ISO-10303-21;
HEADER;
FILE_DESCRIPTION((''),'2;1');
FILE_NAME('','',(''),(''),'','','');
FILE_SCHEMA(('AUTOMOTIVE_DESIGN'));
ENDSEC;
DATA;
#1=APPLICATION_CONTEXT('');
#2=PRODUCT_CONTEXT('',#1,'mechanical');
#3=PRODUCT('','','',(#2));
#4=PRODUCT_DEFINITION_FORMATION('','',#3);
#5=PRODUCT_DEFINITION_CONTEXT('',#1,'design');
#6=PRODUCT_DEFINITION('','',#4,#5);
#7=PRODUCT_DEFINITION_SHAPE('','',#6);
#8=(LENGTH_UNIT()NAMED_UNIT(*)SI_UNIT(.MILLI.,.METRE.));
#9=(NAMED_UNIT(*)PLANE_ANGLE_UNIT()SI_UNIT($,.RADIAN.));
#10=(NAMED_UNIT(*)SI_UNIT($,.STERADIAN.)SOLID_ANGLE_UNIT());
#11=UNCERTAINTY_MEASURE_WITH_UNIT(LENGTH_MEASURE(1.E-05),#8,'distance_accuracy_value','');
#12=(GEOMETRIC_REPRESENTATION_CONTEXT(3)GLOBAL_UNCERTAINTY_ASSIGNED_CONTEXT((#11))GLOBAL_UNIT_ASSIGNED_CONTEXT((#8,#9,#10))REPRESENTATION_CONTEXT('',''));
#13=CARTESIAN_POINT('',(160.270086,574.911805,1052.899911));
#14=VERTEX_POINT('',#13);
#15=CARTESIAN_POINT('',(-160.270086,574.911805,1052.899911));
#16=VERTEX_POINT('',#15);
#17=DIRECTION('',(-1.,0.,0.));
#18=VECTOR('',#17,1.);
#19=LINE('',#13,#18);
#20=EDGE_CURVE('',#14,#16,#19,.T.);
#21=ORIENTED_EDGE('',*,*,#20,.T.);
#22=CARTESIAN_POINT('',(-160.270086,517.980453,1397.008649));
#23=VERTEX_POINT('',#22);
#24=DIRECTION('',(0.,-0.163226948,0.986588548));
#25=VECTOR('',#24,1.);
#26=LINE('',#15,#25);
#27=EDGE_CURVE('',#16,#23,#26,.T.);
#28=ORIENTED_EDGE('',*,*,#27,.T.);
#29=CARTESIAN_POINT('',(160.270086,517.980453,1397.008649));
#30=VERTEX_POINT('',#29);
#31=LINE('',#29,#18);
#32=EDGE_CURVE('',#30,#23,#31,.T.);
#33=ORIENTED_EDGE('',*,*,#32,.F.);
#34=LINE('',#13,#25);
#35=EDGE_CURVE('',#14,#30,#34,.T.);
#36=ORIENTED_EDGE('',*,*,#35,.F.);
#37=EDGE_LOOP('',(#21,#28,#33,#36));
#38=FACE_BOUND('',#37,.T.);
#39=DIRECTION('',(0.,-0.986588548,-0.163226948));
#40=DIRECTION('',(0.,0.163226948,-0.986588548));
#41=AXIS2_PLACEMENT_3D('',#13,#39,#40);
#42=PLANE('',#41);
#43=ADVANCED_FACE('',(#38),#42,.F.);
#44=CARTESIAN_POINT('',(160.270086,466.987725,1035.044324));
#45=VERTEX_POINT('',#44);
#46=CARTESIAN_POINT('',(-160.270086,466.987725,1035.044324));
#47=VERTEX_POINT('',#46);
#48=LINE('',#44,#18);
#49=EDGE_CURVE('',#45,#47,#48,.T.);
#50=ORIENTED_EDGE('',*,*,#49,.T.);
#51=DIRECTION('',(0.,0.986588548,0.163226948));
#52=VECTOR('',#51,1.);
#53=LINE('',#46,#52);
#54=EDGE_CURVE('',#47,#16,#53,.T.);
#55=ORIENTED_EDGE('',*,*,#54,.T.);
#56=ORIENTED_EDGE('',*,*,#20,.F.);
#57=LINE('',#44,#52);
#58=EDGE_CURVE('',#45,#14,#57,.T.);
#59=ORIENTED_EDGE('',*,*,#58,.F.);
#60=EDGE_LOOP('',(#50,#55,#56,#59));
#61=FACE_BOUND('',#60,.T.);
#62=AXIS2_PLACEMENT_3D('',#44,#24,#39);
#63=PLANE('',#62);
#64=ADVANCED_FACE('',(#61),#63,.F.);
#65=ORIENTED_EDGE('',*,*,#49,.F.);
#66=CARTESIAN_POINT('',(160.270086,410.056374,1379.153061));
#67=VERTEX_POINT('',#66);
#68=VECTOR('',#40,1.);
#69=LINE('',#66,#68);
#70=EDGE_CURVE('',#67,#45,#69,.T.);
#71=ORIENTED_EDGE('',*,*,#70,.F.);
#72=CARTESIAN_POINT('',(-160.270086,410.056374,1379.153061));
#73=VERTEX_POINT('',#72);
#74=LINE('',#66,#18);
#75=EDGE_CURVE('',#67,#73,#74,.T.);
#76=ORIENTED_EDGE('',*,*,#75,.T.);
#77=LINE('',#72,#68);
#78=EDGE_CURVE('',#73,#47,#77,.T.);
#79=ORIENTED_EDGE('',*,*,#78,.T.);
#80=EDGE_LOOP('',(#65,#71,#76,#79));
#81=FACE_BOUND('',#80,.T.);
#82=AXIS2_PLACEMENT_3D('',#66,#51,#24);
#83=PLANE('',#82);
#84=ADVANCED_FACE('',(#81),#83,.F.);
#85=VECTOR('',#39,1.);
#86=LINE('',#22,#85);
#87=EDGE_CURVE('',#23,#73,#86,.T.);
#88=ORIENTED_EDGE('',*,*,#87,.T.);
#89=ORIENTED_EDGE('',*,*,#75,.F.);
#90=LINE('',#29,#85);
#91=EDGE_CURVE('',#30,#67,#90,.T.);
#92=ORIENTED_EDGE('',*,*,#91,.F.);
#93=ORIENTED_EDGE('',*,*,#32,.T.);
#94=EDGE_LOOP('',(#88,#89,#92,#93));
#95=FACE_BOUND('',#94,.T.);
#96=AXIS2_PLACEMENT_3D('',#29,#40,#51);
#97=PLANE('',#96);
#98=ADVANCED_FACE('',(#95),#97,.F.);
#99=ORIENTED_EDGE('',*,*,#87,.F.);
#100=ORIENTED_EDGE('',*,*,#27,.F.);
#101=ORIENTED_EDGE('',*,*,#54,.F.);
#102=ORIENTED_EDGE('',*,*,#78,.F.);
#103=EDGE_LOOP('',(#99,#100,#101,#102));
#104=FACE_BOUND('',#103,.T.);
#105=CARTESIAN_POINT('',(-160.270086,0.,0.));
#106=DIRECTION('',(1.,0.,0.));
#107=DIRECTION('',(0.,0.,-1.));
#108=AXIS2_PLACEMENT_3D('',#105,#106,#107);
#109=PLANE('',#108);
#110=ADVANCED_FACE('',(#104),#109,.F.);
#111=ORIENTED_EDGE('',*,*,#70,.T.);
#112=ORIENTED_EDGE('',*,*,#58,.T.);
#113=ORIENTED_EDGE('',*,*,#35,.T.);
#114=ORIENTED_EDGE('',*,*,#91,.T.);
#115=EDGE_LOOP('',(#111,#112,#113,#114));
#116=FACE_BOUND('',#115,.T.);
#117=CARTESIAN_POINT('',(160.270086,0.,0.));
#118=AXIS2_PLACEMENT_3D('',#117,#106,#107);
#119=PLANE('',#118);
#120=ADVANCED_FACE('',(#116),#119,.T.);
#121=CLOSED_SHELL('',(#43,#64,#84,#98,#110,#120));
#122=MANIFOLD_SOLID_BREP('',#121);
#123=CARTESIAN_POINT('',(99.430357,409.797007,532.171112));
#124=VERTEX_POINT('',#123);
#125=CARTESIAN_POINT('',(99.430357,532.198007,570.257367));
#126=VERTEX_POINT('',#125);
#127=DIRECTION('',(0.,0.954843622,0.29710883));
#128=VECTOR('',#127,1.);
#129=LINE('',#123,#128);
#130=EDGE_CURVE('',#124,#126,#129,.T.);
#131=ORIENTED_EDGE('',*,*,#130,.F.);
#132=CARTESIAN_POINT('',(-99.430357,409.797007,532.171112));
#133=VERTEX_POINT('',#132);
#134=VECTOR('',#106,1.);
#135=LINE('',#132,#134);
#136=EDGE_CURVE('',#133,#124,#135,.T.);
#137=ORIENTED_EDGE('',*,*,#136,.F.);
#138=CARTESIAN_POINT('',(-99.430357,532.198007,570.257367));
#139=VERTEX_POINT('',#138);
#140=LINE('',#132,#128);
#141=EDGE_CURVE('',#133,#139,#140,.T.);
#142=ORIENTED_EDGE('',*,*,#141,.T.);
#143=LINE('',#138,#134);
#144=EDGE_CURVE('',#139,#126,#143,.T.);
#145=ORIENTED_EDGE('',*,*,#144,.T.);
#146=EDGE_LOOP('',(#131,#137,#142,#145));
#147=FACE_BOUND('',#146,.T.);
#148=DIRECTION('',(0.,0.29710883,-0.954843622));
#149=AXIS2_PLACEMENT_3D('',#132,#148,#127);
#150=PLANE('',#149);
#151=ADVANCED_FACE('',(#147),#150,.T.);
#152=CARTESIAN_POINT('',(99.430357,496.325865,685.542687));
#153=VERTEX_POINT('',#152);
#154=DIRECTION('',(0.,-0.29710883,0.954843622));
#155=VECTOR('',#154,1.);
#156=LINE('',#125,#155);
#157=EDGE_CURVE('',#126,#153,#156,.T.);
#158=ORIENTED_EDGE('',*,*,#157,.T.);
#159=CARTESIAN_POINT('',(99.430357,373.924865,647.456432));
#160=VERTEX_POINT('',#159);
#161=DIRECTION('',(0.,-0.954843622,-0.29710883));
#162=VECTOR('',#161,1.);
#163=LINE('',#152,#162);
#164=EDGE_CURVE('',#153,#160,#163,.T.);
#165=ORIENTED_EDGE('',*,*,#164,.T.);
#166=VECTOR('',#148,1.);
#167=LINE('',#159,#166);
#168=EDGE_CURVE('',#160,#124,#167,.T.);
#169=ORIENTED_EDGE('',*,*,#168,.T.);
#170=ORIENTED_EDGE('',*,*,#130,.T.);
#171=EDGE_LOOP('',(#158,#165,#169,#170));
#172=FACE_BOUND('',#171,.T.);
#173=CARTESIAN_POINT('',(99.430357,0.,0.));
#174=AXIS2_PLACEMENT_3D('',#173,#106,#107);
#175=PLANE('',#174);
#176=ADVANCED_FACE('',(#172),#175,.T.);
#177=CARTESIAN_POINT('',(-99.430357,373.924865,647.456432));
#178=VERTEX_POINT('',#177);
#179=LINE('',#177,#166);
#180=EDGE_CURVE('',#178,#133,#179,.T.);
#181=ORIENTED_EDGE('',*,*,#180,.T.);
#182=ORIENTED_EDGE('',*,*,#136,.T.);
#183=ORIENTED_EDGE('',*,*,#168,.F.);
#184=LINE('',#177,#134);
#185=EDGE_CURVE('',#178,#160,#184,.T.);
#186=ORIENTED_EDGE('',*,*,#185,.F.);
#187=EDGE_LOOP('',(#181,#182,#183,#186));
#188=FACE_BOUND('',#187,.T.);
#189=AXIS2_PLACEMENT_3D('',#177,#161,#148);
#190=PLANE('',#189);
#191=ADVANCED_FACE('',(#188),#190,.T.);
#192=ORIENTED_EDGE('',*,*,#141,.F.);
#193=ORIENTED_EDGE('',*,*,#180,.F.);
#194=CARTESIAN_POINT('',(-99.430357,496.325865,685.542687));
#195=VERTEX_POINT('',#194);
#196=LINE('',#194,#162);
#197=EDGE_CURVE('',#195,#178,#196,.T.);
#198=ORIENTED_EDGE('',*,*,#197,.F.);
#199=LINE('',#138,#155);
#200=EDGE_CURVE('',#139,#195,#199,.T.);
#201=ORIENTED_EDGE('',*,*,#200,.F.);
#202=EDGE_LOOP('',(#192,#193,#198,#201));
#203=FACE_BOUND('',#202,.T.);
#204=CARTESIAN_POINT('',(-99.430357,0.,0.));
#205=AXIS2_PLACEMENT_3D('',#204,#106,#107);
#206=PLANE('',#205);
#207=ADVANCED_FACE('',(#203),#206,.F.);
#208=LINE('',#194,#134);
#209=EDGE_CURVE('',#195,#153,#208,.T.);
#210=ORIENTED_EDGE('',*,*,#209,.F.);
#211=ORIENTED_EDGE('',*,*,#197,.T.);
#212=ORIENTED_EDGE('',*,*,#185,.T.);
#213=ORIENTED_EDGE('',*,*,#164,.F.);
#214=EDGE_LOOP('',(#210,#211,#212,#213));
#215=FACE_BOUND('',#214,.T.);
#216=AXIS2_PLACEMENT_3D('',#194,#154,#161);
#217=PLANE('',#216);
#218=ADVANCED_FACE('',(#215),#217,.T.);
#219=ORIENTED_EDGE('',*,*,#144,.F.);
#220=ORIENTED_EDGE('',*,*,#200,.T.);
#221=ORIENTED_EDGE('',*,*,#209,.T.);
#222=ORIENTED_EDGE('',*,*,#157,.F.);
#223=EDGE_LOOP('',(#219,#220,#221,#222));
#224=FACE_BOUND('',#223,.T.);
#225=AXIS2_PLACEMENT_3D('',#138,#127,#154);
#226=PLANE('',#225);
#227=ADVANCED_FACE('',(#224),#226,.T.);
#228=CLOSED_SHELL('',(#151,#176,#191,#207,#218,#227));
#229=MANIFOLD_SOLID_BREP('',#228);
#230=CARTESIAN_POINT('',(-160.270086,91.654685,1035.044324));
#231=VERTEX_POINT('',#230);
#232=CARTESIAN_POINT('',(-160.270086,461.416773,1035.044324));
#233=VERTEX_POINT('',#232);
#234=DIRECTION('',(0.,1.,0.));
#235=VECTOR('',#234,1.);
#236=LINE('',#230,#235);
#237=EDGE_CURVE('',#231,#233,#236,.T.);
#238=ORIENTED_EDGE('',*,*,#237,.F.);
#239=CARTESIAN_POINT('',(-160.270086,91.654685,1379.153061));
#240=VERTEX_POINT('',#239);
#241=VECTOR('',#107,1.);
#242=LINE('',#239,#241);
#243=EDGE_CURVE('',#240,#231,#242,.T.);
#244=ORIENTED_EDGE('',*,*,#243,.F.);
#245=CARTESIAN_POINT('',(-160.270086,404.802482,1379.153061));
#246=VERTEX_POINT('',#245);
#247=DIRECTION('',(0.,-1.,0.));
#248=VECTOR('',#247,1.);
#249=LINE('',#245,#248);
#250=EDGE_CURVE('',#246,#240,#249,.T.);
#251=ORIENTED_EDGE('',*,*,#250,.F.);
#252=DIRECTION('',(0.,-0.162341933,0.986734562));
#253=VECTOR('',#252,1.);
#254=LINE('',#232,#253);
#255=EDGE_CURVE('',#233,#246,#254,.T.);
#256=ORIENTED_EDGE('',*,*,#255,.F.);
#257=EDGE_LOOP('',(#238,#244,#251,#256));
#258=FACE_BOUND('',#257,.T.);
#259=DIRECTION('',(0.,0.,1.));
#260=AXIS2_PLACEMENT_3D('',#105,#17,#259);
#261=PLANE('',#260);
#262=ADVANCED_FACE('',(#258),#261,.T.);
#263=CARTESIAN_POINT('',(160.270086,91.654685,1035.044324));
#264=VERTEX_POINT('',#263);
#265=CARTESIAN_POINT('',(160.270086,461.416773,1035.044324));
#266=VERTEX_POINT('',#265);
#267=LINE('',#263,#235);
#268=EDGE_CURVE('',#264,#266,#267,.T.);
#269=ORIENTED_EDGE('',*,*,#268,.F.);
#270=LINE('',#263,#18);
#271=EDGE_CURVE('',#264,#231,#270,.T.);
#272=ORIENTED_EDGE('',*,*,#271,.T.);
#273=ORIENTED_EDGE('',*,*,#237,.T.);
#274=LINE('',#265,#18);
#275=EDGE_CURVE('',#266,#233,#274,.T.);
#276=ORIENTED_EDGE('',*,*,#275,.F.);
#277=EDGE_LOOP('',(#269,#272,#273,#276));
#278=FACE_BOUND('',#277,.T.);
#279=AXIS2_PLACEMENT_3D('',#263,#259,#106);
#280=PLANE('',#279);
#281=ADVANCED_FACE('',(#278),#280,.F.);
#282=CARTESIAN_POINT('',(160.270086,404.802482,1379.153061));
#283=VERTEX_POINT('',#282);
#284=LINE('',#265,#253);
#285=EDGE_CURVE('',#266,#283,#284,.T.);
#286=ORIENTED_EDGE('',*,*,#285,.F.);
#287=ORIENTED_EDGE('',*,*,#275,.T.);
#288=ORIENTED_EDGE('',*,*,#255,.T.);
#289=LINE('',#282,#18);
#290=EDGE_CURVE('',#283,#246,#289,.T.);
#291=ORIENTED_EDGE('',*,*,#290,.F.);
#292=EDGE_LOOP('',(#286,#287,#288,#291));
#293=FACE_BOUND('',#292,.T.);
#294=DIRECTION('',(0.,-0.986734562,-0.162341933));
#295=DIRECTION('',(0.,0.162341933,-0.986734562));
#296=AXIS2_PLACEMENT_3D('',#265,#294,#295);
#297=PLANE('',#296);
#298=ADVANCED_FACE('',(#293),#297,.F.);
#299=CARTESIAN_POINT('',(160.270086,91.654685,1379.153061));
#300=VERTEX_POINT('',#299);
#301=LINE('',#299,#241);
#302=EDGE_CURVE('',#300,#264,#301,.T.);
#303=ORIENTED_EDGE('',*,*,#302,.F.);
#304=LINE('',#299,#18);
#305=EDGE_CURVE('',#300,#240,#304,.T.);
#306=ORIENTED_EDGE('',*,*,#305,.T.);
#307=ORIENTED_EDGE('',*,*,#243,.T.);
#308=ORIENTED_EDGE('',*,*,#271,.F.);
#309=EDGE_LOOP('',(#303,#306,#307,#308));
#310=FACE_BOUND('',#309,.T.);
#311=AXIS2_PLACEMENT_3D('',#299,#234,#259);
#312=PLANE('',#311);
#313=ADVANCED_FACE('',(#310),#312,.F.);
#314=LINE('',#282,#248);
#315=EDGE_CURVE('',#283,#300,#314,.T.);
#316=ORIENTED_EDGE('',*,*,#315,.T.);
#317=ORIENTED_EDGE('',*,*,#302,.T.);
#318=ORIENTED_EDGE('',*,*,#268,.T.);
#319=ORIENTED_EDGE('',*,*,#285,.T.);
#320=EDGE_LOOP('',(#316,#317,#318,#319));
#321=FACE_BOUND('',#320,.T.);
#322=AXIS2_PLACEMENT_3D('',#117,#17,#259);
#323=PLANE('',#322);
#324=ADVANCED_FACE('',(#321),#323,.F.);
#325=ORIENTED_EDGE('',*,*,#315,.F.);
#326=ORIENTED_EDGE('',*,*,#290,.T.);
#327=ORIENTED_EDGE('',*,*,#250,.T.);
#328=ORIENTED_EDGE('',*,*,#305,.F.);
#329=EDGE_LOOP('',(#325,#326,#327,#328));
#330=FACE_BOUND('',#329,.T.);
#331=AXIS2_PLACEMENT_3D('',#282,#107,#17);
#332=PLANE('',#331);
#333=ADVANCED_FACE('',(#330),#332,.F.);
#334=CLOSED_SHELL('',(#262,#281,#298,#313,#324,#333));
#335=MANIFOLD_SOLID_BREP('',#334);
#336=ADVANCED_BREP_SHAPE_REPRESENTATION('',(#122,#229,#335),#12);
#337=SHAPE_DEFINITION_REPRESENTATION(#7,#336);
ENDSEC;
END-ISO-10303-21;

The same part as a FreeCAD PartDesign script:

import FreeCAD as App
import Part
import Sketcher
Q = App.Units.Quantity


def add_polygon(sketch, points):
    """Adds a closed chain of lines whose ends are joined by coincident constraints."""
    first, n = sketch.GeometryCount, len(points)
    for a, b in zip(points, points[1:] + points[:1]):
        sketch.addGeometry(Part.LineSegment(App.Vector(*a, 0), App.Vector(*b, 0)), False)
    for i in range(n):
        sketch.addConstraint(Sketcher.Constraint("Coincident", first + i, 2, first + (i + 1) % n, 1))

doc = App.newDocument("Part")
body = doc.addObject("PartDesign::Body", "Body")

sketch1 = body.newObject("Sketcher::SketchObject", "Sketch")
sketch1.AttachmentSupport = (doc.getObject("YZ_Plane"), [""])
sketch1.MapMode = "FlatFace"
sketch1.AttachmentOffset = App.Placement(App.Vector(0, 0, -160.270086), App.Rotation())
add_polygon(sketch1, [(461, 1035), (405, 1379), (92, 1379), (92, 1035)])
sketch1.addConstraint(Sketcher.Constraint("Horizontal", 1))
sketch1.addConstraint(Sketcher.Constraint("Vertical", 2))
sketch1.addConstraint(Sketcher.Constraint("Horizontal", 3))
sketch1.addConstraint(Sketcher.Constraint("DistanceX", 3, 1, 3, 2, Q("369.762088 mm")))
sketch1.addConstraint(Sketcher.Constraint("Distance", 0, Q("348.734858 mm")))
sketch1.addConstraint(Sketcher.Constraint("DistanceX", 1, 2, 1, 1, Q("313.147797 mm")))
sketch1.addConstraint(Sketcher.Constraint("DistanceY", -1, 1, 0, 2, Q("1379.153061 mm")))
sketch1.addConstraint(Sketcher.Constraint("DistanceX", -1, 1, 0, 2, Q("404.802482 mm")))
pad1 = body.newObject("PartDesign::Pad", "Pad")
pad1.Profile = sketch1
pad1.Length = 320.540172
body2 = doc.addObject("PartDesign::Body", "Body001")

sketch2 = body2.newObject("Sketcher::SketchObject", "Sketch001")
sketch2.AttachmentSupport = (doc.getObject("YZ_Plane001"), [""])
sketch2.MapMode = "FlatFace"
sketch2.AttachmentOffset = App.Placement(App.Vector(0, 0, -160.270086), App.Rotation())
add_polygon(sketch2, [(410, 1379), (467, 1035), (575, 1053), (518, 1397)])
sketch2.addConstraint(Sketcher.Constraint("Perpendicular", 0, 1))
sketch2.addConstraint(Sketcher.Constraint("Perpendicular", 1, 2))
sketch2.addConstraint(Sketcher.Constraint("Perpendicular", 2, 3))
sketch2.addConstraint(Sketcher.Constraint("Distance", 0, Q("348.786471 mm")))
sketch2.addConstraint(Sketcher.Constraint("DistanceY", -1, 1, 1, 2, Q("1052.899911 mm")))
sketch2.addConstraint(Sketcher.Constraint("DistanceY", -1, 1, 2, 2, Q("1397.008649 mm")))
sketch2.addConstraint(Sketcher.Constraint("DistanceY", -1, 1, 3, 2, Q("1379.153061 mm")))
sketch2.addConstraint(Sketcher.Constraint("DistanceX", -1, 1, 0, 2, Q("466.987725 mm")))
pad2 = body2.newObject("PartDesign::Pad", "Pad001")
pad2.Profile = sketch2
pad2.Length = 320.540172
body3 = doc.addObject("PartDesign::Body", "Body002")

sketch3 = body3.newObject("Sketcher::SketchObject", "Sketch002")
sketch3.AttachmentSupport = (doc.getObject("YZ_Plane002"), [""])
sketch3.MapMode = "FlatFace"
sketch3.AttachmentOffset = App.Placement(App.Vector(0, 0, 99.430357), App.Rotation())
add_polygon(sketch3, [(374, 647), (410, 532), (532, 570), (496, 686)])
sketch3.addConstraint(Sketcher.Constraint("Perpendicular", 0, 1))
sketch3.addConstraint(Sketcher.Constraint("Perpendicular", 1, 2))
sketch3.addConstraint(Sketcher.Constraint("Perpendicular", 2, 3))
sketch3.addConstraint(Sketcher.Constraint("DistanceX", 0, 2, 1, 2, Q("122.401 mm")))
sketch3.addConstraint(Sketcher.Constraint("DistanceY", -1, 1, 3, 2, Q("647.456432 mm")))
sketch3.addConstraint(Sketcher.Constraint("DistanceY", 1, 2, 2, 2, Q("115.28532 mm")))
sketch3.addConstraint(Sketcher.Constraint("Distance", 0, Q("120.737383 mm")))
sketch3.addConstraint(Sketcher.Constraint("DistanceX", -1, 1, 0, 2, Q("409.797007 mm")))
pad3 = body3.newObject("PartDesign::Pad", "Pad002")
pad3.Profile = sketch3
pad3.Length = 198.860714
pad3.Reversed = True

doc.recompute()
